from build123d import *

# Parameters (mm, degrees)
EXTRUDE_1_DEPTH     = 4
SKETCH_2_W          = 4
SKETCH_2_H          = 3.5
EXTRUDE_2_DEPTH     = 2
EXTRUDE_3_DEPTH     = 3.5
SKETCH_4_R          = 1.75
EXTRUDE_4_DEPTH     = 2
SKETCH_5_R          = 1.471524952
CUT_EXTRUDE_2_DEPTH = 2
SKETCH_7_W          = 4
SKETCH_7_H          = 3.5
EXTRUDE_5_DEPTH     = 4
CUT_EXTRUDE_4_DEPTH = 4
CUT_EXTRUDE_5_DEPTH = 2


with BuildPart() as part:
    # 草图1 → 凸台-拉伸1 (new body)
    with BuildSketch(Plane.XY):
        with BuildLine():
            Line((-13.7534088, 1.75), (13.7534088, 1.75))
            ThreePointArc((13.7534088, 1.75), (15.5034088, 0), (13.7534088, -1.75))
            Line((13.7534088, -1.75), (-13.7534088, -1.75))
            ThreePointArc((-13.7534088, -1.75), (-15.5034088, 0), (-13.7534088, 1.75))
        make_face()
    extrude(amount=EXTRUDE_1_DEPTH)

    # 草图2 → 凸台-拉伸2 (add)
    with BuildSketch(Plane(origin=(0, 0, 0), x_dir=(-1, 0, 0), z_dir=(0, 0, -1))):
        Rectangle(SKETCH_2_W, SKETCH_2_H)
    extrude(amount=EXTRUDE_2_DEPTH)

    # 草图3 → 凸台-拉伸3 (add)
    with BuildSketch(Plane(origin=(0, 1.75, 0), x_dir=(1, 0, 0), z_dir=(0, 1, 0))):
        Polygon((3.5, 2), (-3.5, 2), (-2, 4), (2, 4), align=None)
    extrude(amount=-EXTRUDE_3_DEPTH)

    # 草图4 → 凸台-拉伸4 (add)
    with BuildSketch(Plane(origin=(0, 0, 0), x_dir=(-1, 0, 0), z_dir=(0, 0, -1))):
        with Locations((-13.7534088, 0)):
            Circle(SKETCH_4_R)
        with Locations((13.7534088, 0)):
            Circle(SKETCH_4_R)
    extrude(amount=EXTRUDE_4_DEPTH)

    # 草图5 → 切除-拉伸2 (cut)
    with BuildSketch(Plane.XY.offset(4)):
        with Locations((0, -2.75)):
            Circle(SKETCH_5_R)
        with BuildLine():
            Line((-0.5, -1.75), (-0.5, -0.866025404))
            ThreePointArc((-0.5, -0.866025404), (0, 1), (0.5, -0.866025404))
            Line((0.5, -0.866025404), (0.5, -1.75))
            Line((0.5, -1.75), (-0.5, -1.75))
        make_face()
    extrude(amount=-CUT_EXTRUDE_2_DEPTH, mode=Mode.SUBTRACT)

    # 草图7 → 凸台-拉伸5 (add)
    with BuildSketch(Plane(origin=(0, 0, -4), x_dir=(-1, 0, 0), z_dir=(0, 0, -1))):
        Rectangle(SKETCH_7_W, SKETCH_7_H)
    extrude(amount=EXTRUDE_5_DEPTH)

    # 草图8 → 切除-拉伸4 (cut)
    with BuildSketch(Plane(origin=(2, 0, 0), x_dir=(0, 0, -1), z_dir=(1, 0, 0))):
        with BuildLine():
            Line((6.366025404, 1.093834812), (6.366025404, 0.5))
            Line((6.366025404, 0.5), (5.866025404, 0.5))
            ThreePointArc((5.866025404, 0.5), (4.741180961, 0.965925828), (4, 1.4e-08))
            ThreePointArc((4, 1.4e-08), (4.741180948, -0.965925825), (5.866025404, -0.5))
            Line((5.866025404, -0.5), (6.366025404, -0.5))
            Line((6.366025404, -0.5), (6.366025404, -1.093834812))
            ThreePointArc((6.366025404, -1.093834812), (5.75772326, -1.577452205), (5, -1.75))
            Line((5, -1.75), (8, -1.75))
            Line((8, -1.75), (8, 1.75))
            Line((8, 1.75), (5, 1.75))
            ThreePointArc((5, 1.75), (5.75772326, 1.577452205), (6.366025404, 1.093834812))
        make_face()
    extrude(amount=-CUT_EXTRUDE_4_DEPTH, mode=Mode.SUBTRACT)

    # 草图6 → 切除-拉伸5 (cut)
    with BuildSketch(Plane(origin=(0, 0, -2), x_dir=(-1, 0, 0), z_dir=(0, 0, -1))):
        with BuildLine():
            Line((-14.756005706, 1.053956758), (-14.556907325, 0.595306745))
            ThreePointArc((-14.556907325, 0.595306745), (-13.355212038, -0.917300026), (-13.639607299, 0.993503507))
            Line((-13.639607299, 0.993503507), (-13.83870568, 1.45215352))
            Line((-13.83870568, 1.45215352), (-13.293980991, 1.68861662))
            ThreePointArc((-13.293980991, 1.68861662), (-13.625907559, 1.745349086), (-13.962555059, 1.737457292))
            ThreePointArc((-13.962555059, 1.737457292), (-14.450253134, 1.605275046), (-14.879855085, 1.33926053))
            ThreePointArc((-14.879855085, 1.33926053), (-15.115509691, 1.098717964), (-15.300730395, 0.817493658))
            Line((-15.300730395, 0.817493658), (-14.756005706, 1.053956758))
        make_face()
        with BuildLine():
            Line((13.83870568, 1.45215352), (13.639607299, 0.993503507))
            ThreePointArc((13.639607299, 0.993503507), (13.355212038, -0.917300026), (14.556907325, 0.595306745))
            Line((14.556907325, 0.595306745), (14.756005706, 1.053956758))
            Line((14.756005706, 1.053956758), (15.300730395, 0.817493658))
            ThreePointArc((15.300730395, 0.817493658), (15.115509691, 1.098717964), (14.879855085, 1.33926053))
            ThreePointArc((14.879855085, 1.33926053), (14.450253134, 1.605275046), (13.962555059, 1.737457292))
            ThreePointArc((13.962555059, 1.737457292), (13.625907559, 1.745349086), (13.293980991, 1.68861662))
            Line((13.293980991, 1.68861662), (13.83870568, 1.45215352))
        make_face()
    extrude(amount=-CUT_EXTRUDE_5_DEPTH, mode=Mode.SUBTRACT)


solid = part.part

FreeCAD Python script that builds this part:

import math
import FreeCAD as App
import Part
import Sketcher

V = App.Vector

doc = App.newDocument("Part")
body = doc.addObject("PartDesign::Body", "Body")

# Sketch on XY plane
sketch1 = body.newObject("Sketcher::SketchObject", "Sketch")
sketch1.AttachmentSupport = (doc.getObject("XY_Plane"), [""])
sketch1.MapMode = "FlatFace"
sketch1.addGeometry([
    Part.LineSegment(V(13.753409, 1.75, 0), V(-13.753409, 1.75, 0)),
    Part.ArcOfCircle(Part.Circle(V(-13.753409, 0, 0), V(0, 0, 1), 1.75), math.radians(90), math.radians(270)),
    Part.LineSegment(V(-13.753409, -1.75, 0), V(13.753409, -1.75, 0)),
    Part.ArcOfCircle(Part.Circle(V(13.753409, 0, 0), V(0, 0, 1), 1.75), math.radians(-90), math.radians(90)),
], False)
sketch1.addConstraint([
    Sketcher.Constraint("Tangent", 0, 2, 1, 1),
    Sketcher.Constraint("Tangent", 1, 2, 2, 1),
    Sketcher.Constraint("Tangent", 2, 2, 3, 1),
    Sketcher.Constraint("Tangent", 3, 2, 0, 1),
    Sketcher.Constraint("Horizontal", 0),
    Sketcher.Constraint("Horizontal", 2),
    Sketcher.Constraint("Symmetric", 1, 3, 3, 3, -1, 1),
    Sketcher.Constraint("Radius", 1, 1.75),
    Sketcher.Constraint("DistanceX", 0, 2, 0, 1, 27.506818),
])
pad1 = body.newObject("PartDesign::Pad", "Pad")
pad1.Profile = sketch1
pad1.Length = 4

# Sketch on XY plane
sketch2 = body.newObject("Sketcher::SketchObject", "Sketch001")
sketch2.AttachmentSupport = (doc.getObject("XY_Plane"), [""])
sketch2.MapMode = "FlatFace"
sketch2.addGeometry([
    Part.LineSegment(V(2, 1.75, 0), V(2, -1.75, 0)),
    Part.LineSegment(V(2, -1.75, 0), V(-2, -1.75, 0)),
    Part.LineSegment(V(-2, -1.75, 0), V(-2, 1.75, 0)),
    Part.LineSegment(V(-2, 1.75, 0), V(2, 1.75, 0)),
], False)
sketch2.addConstraint([
    Sketcher.Constraint("Coincident", 0, 2, 1, 1),
    Sketcher.Constraint("Coincident", 1, 2, 2, 1),
    Sketcher.Constraint("Coincident", 2, 2, 3, 1),
    Sketcher.Constraint("Coincident", 3, 2, 0, 1),
    Sketcher.Constraint("Vertical", 0),
    Sketcher.Constraint("Horizontal", 1),
    Sketcher.Constraint("Vertical", 2),
    Sketcher.Constraint("Horizontal", 3),
    Sketcher.Constraint("Symmetric", 0, 2, 2, 2, -1, 1),
    Sketcher.Constraint("DistanceX", 1, 2, 1, 1, 4.0),
    Sketcher.Constraint("DistanceY", 0, 2, 0, 1, 3.5),
])
pad2 = body.newObject("PartDesign::Pad", "Pad001")
pad2.Profile = sketch2
pad2.Length = 2
pad2.Reversed = True

# Sketch on XZ plane
sketch3 = body.newObject("Sketcher::SketchObject", "Sketch002")
sketch3.AttachmentSupport = (doc.getObject("XZ_Plane"), [""])
sketch3.MapMode = "FlatFace"
sketch3.AttachmentOffset = App.Placement(V(0, 0, -1.75), App.Rotation())
sketch3.addGeometry([
    Part.LineSegment(V(-3.5, -2, 0), V(3.5, -2, 0)),
    Part.LineSegment(V(3.5, -2, 0), V(2, -4, 0)),
    Part.LineSegment(V(2, -4, 0), V(-2, -4, 0)),
    Part.LineSegment(V(-2, -4, 0), V(-3.5, -2, 0)),
], False)
sketch3.addConstraint([
    Sketcher.Constraint("Coincident", 0, 2, 1, 1),
    Sketcher.Constraint("Coincident", 1, 2, 2, 1),
    Sketcher.Constraint("Coincident", 2, 2, 3, 1),
    Sketcher.Constraint("Coincident", 3, 2, 0, 1),
    Sketcher.Constraint("Horizontal", 0),
    Sketcher.Constraint("Horizontal", 2),
    Sketcher.Constraint("Equal", 1, 3),
    Sketcher.Constraint("DistanceX", 0, 1, 0, 2, 7.0),
    Sketcher.Constraint("DistanceX", 2, 2, 2, 1, 4.0),
    Sketcher.Constraint("DistanceY", 0, 2, -1, 1, 2.0),
    Sketcher.Constraint("DistanceX", -1, 1, 1, 2, 2.0),
    Sketcher.Constraint("DistanceY", 1, 2, -1, 1, 4.0),
])
pad3 = body.newObject("PartDesign::Pad", "Pad002")
pad3.Profile = sketch3
pad3.Length = 3.5

# Sketch on XY plane
sketch4 = body.newObject("Sketcher::SketchObject", "Sketch003")
sketch4.AttachmentSupport = (doc.getObject("XY_Plane"), [""])
sketch4.MapMode = "FlatFace"
sketch4.addGeometry([
    Part.Circle(V(13.753409, 0, 0), V(0, 0, 1), 1.75),
    Part.Circle(V(-13.753409, 0, 0), V(0, 0, 1), 1.75),
], False)
sketch4.addConstraint([
    Sketcher.Constraint("Equal", 0, 1),
    Sketcher.Constraint("Symmetric", 0, 3, 1, 3, -1, 1),
    Sketcher.Constraint("PointOnObject", 0, 3, -1),
    Sketcher.Constraint("Diameter", 0, 3.5),
    Sketcher.Constraint("DistanceX", -1, 1, 0, 3, 13.753409),
])
pad4 = body.newObject("PartDesign::Pad", "Pad003")
pad4.Profile = sketch4
pad4.Length = 2
pad4.Reversed = True

# Sketch on XY plane
sketch5 = body.newObject("Sketcher::SketchObject", "Sketch004")
sketch5.AttachmentSupport = (doc.getObject("XY_Plane"), [""])
sketch5.MapMode = "FlatFace"
sketch5.AttachmentOffset = App.Placement(V(0, 0, 4), App.Rotation())
sketch5.addGeometry([
    Part.ArcOfCircle(Part.Circle(V(0, -2.75, 0), V(0, 0, 1), 1.471525), math.radians(109.863688), math.radians(430.136312)),
    Part.LineSegment(V(0.5, -1.366025, 0), V(0.5, -0.866025, 0)),
    Part.ArcOfCircle(Part.Circle(V(0, 0, 0), V(0, 0, 1), 1), math.radians(-60), math.radians(240)),
    Part.LineSegment(V(-0.5, -0.866025, 0), V(-0.5, -1.366025, 0)),
], False)
sketch5.addConstraint([
    Sketcher.Constraint("Coincident", 0, 2, 1, 1),
    Sketcher.Constraint("Coincident", 1, 2, 2, 1),
    Sketcher.Constraint("Coincident", 2, 2, 3, 1),
    Sketcher.Constraint("Coincident", 3, 2, 0, 1),
    Sketcher.Constraint("Vertical", 1),
    Sketcher.Constraint("Vertical", 3),
    Sketcher.Constraint("Coincident", 2, 3, -1, 1),
    Sketcher.Constraint("Symmetric", 0, 2, 3, 2, -2),
    Sketcher.Constraint("Radius", 2, 1.0),
    Sketcher.Constraint("DistanceY", 1, 1, 1, 2, 0.5),
    Sketcher.Constraint("DistanceX", 2, 2, 1, 2, 1.0),
    Sketcher.Constraint("DistanceY", 0, 3, -1, 1, 2.75),
])
pocket1 = body.newObject("PartDesign::Pocket", "Pocket")
pocket1.Profile = sketch5
pocket1.Length = 2

# Sketch on XY plane
sketch6 = body.newObject("Sketcher::SketchObject", "Sketch005")
sketch6.AttachmentSupport = (doc.getObject("XY_Plane"), [""])
sketch6.MapMode = "FlatFace"
sketch6.AttachmentOffset = App.Placement(V(0, 0, -4), App.Rotation())
sketch6.addGeometry([
    Part.LineSegment(V(2, 1.75, 0), V(2, -1.75, 0)),
    Part.LineSegment(V(2, -1.75, 0), V(-2, -1.75, 0)),
    Part.LineSegment(V(-2, -1.75, 0), V(-2, 1.75, 0)),
    Part.LineSegment(V(-2, 1.75, 0), V(2, 1.75, 0)),
], False)
sketch6.addConstraint([
    Sketcher.Constraint("Coincident", 0, 2, 1, 1),
    Sketcher.Constraint("Coincident", 1, 2, 2, 1),
    Sketcher.Constraint("Coincident", 2, 2, 3, 1),
    Sketcher.Constraint("Coincident", 3, 2, 0, 1),
    Sketcher.Constraint("Vertical", 0),
    Sketcher.Constraint("Horizontal", 1),
    Sketcher.Constraint("Vertical", 2),
    Sketcher.Constraint("Horizontal", 3),
    Sketcher.Constraint("Symmetric", 0, 2, 2, 2, -1, 1),
    Sketcher.Constraint("DistanceX", 1, 2, 1, 1, 4.0),
    Sketcher.Constraint("DistanceY", 0, 2, 0, 1, 3.5),
])
pad5 = body.newObject("PartDesign::Pad", "Pad004")
pad5.Profile = sketch6
pad5.Length = 4
pad5.Reversed = True

# Sketch on YZ plane
sketch7 = body.newObject("Sketcher::SketchObject", "Sketch006")
sketch7.AttachmentSupport = (doc.getObject("YZ_Plane"), [""])
sketch7.MapMode = "FlatFace"
sketch7.AttachmentOffset = App.Placement(V(0, 0, 2), App.Rotation())
sketch7.addGeometry([
    Part.LineSegment(V(1.093835, -6.366025, 0), V(0.5, -6.366025, 0)),  # 0
    Part.LineSegment(V(0.5, -6.366025, 0), V(0.5, -5.866025, 0)),  # 1
    Part.ArcOfCircle(Part.Circle(V(0, -5, 0), V(0, 0, 1), 1), math.radians(-60), math.radians(89.999999)),  # 2
    Part.ArcOfCircle(Part.Circle(V(0, -5, 0), V(0, 0, 1), 1), math.radians(89.999999), math.radians(240)),  # 3
    Part.LineSegment(V(-0.5, -5.866025, 0), V(-0.5, -6.366025, 0)),  # 4
    Part.LineSegment(V(-0.5, -6.366025, 0), V(-1.093835, -6.366025, 0)),  # 5
    Part.ArcOfCircle(Part.Circle(V(0, -5, 0), V(0, 0, 1), 1.75), math.radians(-180), math.radians(-128.685745)),  # 6
    Part.LineSegment(V(-1.75, -5, 0), V(-1.75, -8, 0)),  # 7
    Part.LineSegment(V(-1.75, -8, 0), V(1.75, -8, 0)),  # 8
    Part.LineSegment(V(1.75, -8, 0), V(1.75, -5, 0)),  # 9
    Part.ArcOfCircle(Part.Circle(V(0, -5, 0), V(0, 0, 1), 1.75), math.radians(-51.314255), math.radians(0)),  # 10
], False)
sketch7.addConstraint([
    Sketcher.Constraint("Coincident", 0, 2, 1, 1),
    Sketcher.Constraint("Coincident", 1, 2, 2, 1),
    Sketcher.Constraint("Tangent", 2, 2, 3, 1),
    Sketcher.Constraint("Coincident", 3, 2, 4, 1),
    Sketcher.Constraint("Coincident", 4, 2, 5, 1),
    Sketcher.Constraint("Coincident", 5, 2, 6, 2),
    Sketcher.Constraint("Tangent", 6, 1, 7, 1),
    Sketcher.Constraint("Coincident", 7, 2, 8, 1),
    Sketcher.Constraint("Coincident", 8, 2, 9, 1),
    Sketcher.Constraint("Tangent", 9, 2, 10, 2),
    Sketcher.Constraint("Coincident", 10, 1, 0, 1),
    Sketcher.Constraint("Horizontal", 0),
    Sketcher.Constraint("Vertical", 1),
    Sketcher.Constraint("Vertical", 4),
    Sketcher.Constraint("Horizontal", 5),
    Sketcher.Constraint("Vertical", 7),
    Sketcher.Constraint("Horizontal", 8),
    Sketcher.Constraint("Vertical", 9),
    Sketcher.Constraint("Coincident", 6, 3, 2, 3),
    Sketcher.Constraint("Coincident", 10, 3, 2, 3),
    Sketcher.Constraint("Equal", 2, 3),
    Sketcher.Constraint("Equal", 6, 10),
    Sketcher.Constraint("Symmetric", 1, 2, 3, 2, -2),
    Sketcher.Constraint("PointOnObject", 2, 2, -2),
    Sketcher.Constraint("Horizontal", 0, 2, 4, 2),
    Sketcher.Constraint("Radius", 2, 1.0),
    Sketcher.Constraint("DistanceY", 7, 2, 7, 1, 3.0),
    Sketcher.Constraint("Radius", 6, 1.75),
    Sketcher.Constraint("DistanceY", 1, 1, 1, 2, 0.5),
    Sketcher.Constraint("DistanceY", 2, 3, -1, 1, 5.0),
    Sketcher.Constraint("DistanceX", 3, 2, 1, 2, 1.0),
])
pocket2 = body.newObject("PartDesign::Pocket", "Pocket001")
pocket2.Profile = sketch7
pocket2.Length = 4

# Sketch on XY plane
sketch8 = body.newObject("Sketcher::SketchObject", "Sketch007")
sketch8.AttachmentSupport = (doc.getObject("XY_Plane"), [""])
sketch8.MapMode = "FlatFace"
sketch8.AttachmentOffset = App.Placement(V(0, 0, -2), App.Rotation())
sketch8.addGeometry([
    Part.LineSegment(V(14.756006, 1.053957, 0), V(14.556907, 0.595307, 0)),  # 0
    Part.ArcOfCircle(Part.Circle(V(13.753409, 0, 0), V(0, 0, 1), 1), math.radians(96.534502), math.radians(396.534502)),  # 1
    Part.LineSegment(V(13.639607, 0.993504, 0), V(13.838706, 1.452154, 0)),  # 2
    Part.LineSegment(V(13.838706, 1.452154, 0), V(13.293981, 1.688617, 0)),  # 3
    Part.ArcOfCircle(Part.Circle(V(13.753409, 0, 0), V(0, 0, 1), 1.75), math.radians(83.136052), math.radians(105.220247)),  # 4
    Part.ArcOfCircle(Part.Circle(V(13.753409, 0, 0), V(0, 0, 1), 1.75), math.radians(49.932953), math.radians(83.136052)),  # 5
    Part.ArcOfCircle(Part.Circle(V(13.753409, 0, 0), V(0, 0, 1), 1.75), math.radians(27.848757), math.radians(49.932953)),  # 6
    Part.LineSegment(V(15.30073, 0.817494, 0), V(14.756006, 1.053957, 0)),  # 7
    Part.LineSegment(V(-13.838706, 1.452154, 0), V(-13.639607, 0.993504, 0)),  # 8
    Part.ArcOfCircle(Part.Circle(V(-13.753409, 0, 0), V(0, 0, 1), 1), math.radians(143.465498), math.radians(443.465498)),  # 9
    Part.LineSegment(V(-14.556907, 0.595307, 0), V(-14.756006, 1.053957, 0)),  # 10
    Part.LineSegment(V(-14.756006, 1.053957, 0), V(-15.30073, 0.817494, 0)),  # 11
    Part.ArcOfCircle(Part.Circle(V(-13.753409, 0, 0), V(0, 0, 1), 1.75), math.radians(130.067047), math.radians(152.151243)),  # 12
    Part.ArcOfCircle(Part.Circle(V(-13.753409, 0, 0), V(0, 0, 1), 1.75), math.radians(96.863948), math.radians(130.067047)),  # 13
    Part.ArcOfCircle(Part.Circle(V(-13.753409, 0, 0), V(0, 0, 1), 1.75), math.radians(74.779753), math.radians(96.863948)),  # 14
    Part.LineSegment(V(-13.293981, 1.688617, 0), V(-13.838706, 1.452154, 0)),  # 15
], False)
sketch8.addConstraint([
    Sketcher.Constraint("Coincident", 0, 2, 1, 2),
    Sketcher.Constraint("Coincident", 1, 1, 2, 1),
    Sketcher.Constraint("Coincident", 2, 2, 3, 1),
    Sketcher.Constraint("Coincident", 3, 2, 4, 2),
    Sketcher.Constraint("Tangent", 4, 1, 5, 2),
    Sketcher.Constraint("Tangent", 5, 1, 6, 2),
    Sketcher.Constraint("Coincident", 6, 1, 7, 1),
    Sketcher.Constraint("Coincident", 7, 2, 0, 1),
    Sketcher.Constraint("Coincident", 8, 2, 9, 2),
    Sketcher.Constraint("Coincident", 9, 1, 10, 1),
    Sketcher.Constraint("Coincident", 10, 2, 11, 1),
    Sketcher.Constraint("Coincident", 11, 2, 12, 2),
    Sketcher.Constraint("Tangent", 12, 1, 13, 2),
    Sketcher.Constraint("Tangent", 13, 1, 14, 2),
    Sketcher.Constraint("Coincident", 14, 1, 15, 1),
    Sketcher.Constraint("Coincident", 15, 2, 8, 1),
    Sketcher.Constraint("Coincident", 4, 3, 1, 3),
    Sketcher.Constraint("Coincident", 6, 3, 1, 3),
    Sketcher.Constraint("Coincident", 12, 3, 9, 3),
    Sketcher.Constraint("Coincident", 14, 3, 9, 3),
    Sketcher.Constraint("Equal", 1, 9),
    Sketcher.Constraint("Equal", 6, 12),
    Sketcher.Constraint("Symmetric", 1, 3, 9, 3, -1, 1),
    Sketcher.Constraint("Symmetric", 1, 1, 8, 2, -2),
    Sketcher.Constraint("Symmetric", 7, 2, 10, 2, -2),
    Sketcher.Constraint("Symmetric", 2, 2, 15, 2, -2),
    Sketcher.Constraint("Parallel", 0, 2),
    Sketcher.Constraint("Perpendicular", 2, 3),
    Sketcher.Constraint("Parallel", 3, 7),
    Sketcher.Constraint("Parallel", 8, 10),
    Sketcher.Constraint("Perpendicular", 10, 11),
    Sketcher.Constraint("Parallel", 11, 15),
    Sketcher.Constraint("Horizontal", 5, 1, 12, 1),
    Sketcher.Constraint("Horizontal", 4, 1, 13, 1),
    Sketcher.Constraint("Equal", 0, 2),
    Sketcher.Constraint("Equal", 3, 7),
    Sketcher.Constraint("Radius", 1, 1.0),
    Sketcher.Constraint("Radius", 4, 1.75),
    Sketcher.Constraint("Distance", 0, 0.5),
    Sketcher.Constraint("DistanceX", 6, 3, 0, 2, 0.803499),
    Sketcher.Constraint("DistanceX", 1, 1, 6, 3, 0.113802),
    Sketcher.Constraint("DistanceX", 4, 1, 5, 1, 0.9173),
    Sketcher.Constraint("DistanceY", 7, 2, 4, 1, 0.683501),
    Sketcher.Constraint("DistanceX", -1, 1, 1, 3, 13.753409),
])
pocket3 = body.newObject("PartDesign::Pocket", "Pocket002")
pocket3.Profile = sketch8
pocket3.Length = 2
pocket3.Reversed = True

doc.recompute()
